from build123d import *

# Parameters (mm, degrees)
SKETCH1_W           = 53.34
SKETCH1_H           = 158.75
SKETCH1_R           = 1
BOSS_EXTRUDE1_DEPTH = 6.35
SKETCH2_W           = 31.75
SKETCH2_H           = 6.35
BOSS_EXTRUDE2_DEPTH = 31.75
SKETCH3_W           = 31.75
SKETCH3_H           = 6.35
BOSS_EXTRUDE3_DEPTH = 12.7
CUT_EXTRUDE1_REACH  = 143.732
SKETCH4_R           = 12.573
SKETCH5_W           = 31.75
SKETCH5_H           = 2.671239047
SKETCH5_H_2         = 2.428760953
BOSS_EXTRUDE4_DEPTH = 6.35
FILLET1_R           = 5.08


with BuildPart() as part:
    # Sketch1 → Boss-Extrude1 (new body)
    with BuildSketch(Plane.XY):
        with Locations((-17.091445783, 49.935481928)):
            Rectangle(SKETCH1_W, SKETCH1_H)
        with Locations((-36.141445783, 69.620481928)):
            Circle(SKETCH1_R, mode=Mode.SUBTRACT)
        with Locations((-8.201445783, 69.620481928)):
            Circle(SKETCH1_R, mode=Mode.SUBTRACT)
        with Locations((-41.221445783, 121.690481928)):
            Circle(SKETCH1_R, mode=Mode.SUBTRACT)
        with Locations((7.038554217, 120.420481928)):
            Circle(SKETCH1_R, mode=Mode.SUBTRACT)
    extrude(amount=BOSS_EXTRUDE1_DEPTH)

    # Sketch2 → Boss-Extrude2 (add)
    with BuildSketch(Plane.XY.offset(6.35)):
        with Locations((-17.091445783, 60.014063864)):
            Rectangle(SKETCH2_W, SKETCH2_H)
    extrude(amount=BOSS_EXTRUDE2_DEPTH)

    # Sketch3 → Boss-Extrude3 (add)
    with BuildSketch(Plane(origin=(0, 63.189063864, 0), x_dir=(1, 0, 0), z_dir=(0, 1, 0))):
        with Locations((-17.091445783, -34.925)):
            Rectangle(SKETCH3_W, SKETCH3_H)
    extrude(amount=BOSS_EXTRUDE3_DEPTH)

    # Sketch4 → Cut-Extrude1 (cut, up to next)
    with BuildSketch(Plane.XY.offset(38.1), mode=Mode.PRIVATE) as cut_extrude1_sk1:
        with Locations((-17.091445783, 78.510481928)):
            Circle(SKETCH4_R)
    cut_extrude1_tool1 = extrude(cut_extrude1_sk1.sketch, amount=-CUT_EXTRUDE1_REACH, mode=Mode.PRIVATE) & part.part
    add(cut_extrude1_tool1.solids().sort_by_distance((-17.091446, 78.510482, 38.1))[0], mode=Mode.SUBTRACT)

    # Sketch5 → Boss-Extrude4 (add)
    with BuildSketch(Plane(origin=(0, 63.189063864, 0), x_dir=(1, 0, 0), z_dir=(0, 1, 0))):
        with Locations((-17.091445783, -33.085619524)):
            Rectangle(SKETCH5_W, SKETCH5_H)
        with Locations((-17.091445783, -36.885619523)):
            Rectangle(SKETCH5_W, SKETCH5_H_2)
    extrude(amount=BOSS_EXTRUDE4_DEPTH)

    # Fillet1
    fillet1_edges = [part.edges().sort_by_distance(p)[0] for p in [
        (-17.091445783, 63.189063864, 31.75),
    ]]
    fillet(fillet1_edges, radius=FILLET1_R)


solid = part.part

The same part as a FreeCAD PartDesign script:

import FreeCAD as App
import Part
import Sketcher
Q = App.Units.Quantity


def edges_at(feature, points):
    """Names of the edges that pass closest to the given points."""
    edges = feature.Shape.Edges
    near = lambda p: min(range(len(edges)), key=lambda i: edges[i].distToShape(Part.Vertex(*p))[0])
    return sorted({f"Edge{near(p) + 1}" for p in points})


def add_polygon(sketch, points):
    """Adds a closed chain of lines whose ends are joined by coincident constraints."""
    first, n = sketch.GeometryCount, len(points)
    for a, b in zip(points, points[1:] + points[:1]):
        sketch.addGeometry(Part.LineSegment(App.Vector(*a, 0), App.Vector(*b, 0)), False)
    for i in range(n):
        sketch.addConstraint(Sketcher.Constraint("Coincident", first + i, 2, first + (i + 1) % n, 1))

doc = App.newDocument("Part")
body = doc.addObject("PartDesign::Body", "Body")

sketch1 = body.newObject("Sketcher::SketchObject", "Sketch")
sketch1.AttachmentSupport = (doc.getObject("XY_Plane"), [""])
sketch1.MapMode = "FlatFace"
add_polygon(sketch1, [(-43.761446, 129.310482), (-43.761446, -29.439518), (9.578554, -29.439518), (9.578554, 129.310482)])
sketch1.addGeometry(Part.Circle(App.Vector(-36.141446, 69.620482, 0), App.Vector(0, 0, 1), 1), False)
sketch1.addGeometry(Part.Circle(App.Vector(-8.201446, 69.620482, 0), App.Vector(0, 0, 1), 1), False)
sketch1.addGeometry(Part.Circle(App.Vector(-41.221446, 121.690482, 0), App.Vector(0, 0, 1), 1), False)
sketch1.addGeometry(Part.Circle(App.Vector(7.038554, 120.420482, 0), App.Vector(0, 0, 1), 1), False)
sketch1.addConstraint(Sketcher.Constraint("Vertical", 0))
sketch1.addConstraint(Sketcher.Constraint("Horizontal", 1))
sketch1.addConstraint(Sketcher.Constraint("Vertical", 2))
sketch1.addConstraint(Sketcher.Constraint("Horizontal", 3))
sketch1.addConstraint(Sketcher.Constraint("Equal", 4, 5))
sketch1.addConstraint(Sketcher.Constraint("Equal", 5, 6))
sketch1.addConstraint(Sketcher.Constraint("Equal", 6, 7))
sketch1.addConstraint(Sketcher.Constraint("Horizontal", 4, 3, 5, 3))
sketch1.addConstraint(Sketcher.Constraint("DistanceX", 1, 1, 1, 2, Q("2.1 in")))
sketch1.addConstraint(Sketcher.Constraint("DistanceY", 5, 3, 7, 3, Q("2 in")))
sketch1.addConstraint(Sketcher.Constraint("DistanceX", 0, 2, 7, 3, Q("2 in")))
sketch1.addConstraint(Sketcher.Constraint("DistanceX", 6, 3, 1, 2, Q("2 in")))
sketch1.addConstraint(Sketcher.Constraint("DistanceY", 0, 2, 0, 1, Q("6.25 in")))
sketch1.addConstraint(Sketcher.Constraint("DistanceX", 4, 3, 5, 3, Q("1.1 in")))
sketch1.addConstraint(Sketcher.Constraint("DistanceX", 6, 3, 4, 3, Q("0.2 in")))
sketch1.addConstraint(Sketcher.Constraint("DistanceY", 0, 2, 4, 3, Q("3.9 in")))
sketch1.addConstraint(Sketcher.Constraint("DistanceY", 6, 3, 2, 2, Q("0.3 in")))
sketch1.addConstraint(Sketcher.Constraint("Diameter", 4, 2.0))
sketch1.addConstraint(Sketcher.Constraint("DistanceY", -1, 1, 4, 3, 69.620482))
sketch1.addConstraint(Sketcher.Constraint("DistanceX", 4, 3, -1, 1, 36.141446))
pad1 = body.newObject("PartDesign::Pad", "Pad")
pad1.Profile = sketch1
pad1.Length = Q("0.25 in")

sketch2 = body.newObject("Sketcher::SketchObject", "Sketch001")
sketch2.AttachmentSupport = (doc.getObject("XY_Plane"), [""])
sketch2.MapMode = "FlatFace"
sketch2.AttachmentOffset = App.Placement(App.Vector(0, 0, 0.25 * 25.4), App.Rotation())
add_polygon(sketch2, [(-32.966446, 63.189064), (-32.966446, 56.839064), (-1.216446, 56.839064), (-1.216446, 63.189064)])
sketch2.addConstraint(Sketcher.Constraint("Vertical", 0))
sketch2.addConstraint(Sketcher.Constraint("Horizontal", 1))
sketch2.addConstraint(Sketcher.Constraint("Vertical", 2))
sketch2.addConstraint(Sketcher.Constraint("Horizontal", 3))
sketch2.addConstraint(Sketcher.Constraint("DistanceX", 1, 1, 1, 2, Q("1.25 in")))
sketch2.addConstraint(Sketcher.Constraint("DistanceY", 0, 2, 0, 1, Q("0.25 in")))
sketch2.addConstraint(Sketcher.Constraint("DistanceX", 0, 2, -1, 1, 32.966446))
sketch2.addConstraint(Sketcher.Constraint("DistanceY", -1, 1, 0, 2, 56.839064))
pad2 = body.newObject("PartDesign::Pad", "Pad001")
pad2.Profile = sketch2
pad2.Length = Q("1.25 in")

sketch3 = body.newObject("Sketcher::SketchObject", "Sketch002")
sketch3.AttachmentSupport = (doc.getObject("XZ_Plane"), [""])
sketch3.MapMode = "FlatFace"
sketch3.AttachmentOffset = App.Placement(App.Vector(0, 0, -63.189064), App.Rotation())
add_polygon(sketch3, [(-32.966446, 31.75), (-32.966446, 38.1), (-1.216446, 38.1), (-1.216446, 31.75)])
sketch3.addConstraint(Sketcher.Constraint("Vertical", 0))
sketch3.addConstraint(Sketcher.Constraint("Horizontal", 1))
sketch3.addConstraint(Sketcher.Constraint("Vertical", 2))
sketch3.addConstraint(Sketcher.Constraint("Horizontal", 3))
sketch3.addConstraint(Sketcher.Constraint("DistanceX", 1, 1, 1, 2, Q("1.25 in")))
sketch3.addConstraint(Sketcher.Constraint("DistanceY", 0, 1, 0, 2, Q("0.25 in")))
sketch3.addConstraint(Sketcher.Constraint("DistanceY", -1, 1, 0, 2, Q("1.5 in")))
sketch3.addConstraint(Sketcher.Constraint("DistanceX", 0, 2, -1, 1, 32.966446))
pad3 = body.newObject("PartDesign::Pad", "Pad002")
pad3.Profile = sketch3
pad3.Length = Q("0.5 in")
pad3.Reversed = True

sketch4 = body.newObject("Sketcher::SketchObject", "Sketch003")
sketch4.AttachmentSupport = (doc.getObject("XY_Plane"), [""])
sketch4.MapMode = "FlatFace"
sketch4.AttachmentOffset = App.Placement(App.Vector(0, 0, 1.5 * 25.4), App.Rotation())
sketch4.addGeometry(Part.Circle(App.Vector(-17.091446, 78.510482, 0), App.Vector(0, 0, 1), 12.573), False)
sketch4.addConstraint(Sketcher.Constraint("Diameter", 0, Q("0.99 in")))
sketch4.addConstraint(Sketcher.Constraint("DistanceY", -1, 1, 0, 3, 78.510482))
sketch4.addConstraint(Sketcher.Constraint("DistanceX", 0, 3, -1, 1, 17.091446))
pocket1 = body.newObject("PartDesign::Pocket", "Pocket")
pocket1.Profile = sketch4
pocket1.Type = "UpToFirst"

sketch5 = body.newObject("Sketcher::SketchObject", "Sketch004")
sketch5.AttachmentSupport = (doc.getObject("XZ_Plane"), [""])
sketch5.MapMode = "FlatFace"
sketch5.AttachmentOffset = App.Placement(App.Vector(0, 0, -63.189064), App.Rotation())
add_polygon(sketch5, [(-32.966446, 31.75), (-32.966446, 34.421239), (-1.216446, 34.421239), (-1.216446, 31.75)])
add_polygon(sketch5, [(-32.966446, 35.671239), (-32.966446, 38.1), (-1.216446, 38.1), (-1.216446, 35.671239)])
sketch5.addConstraint(Sketcher.Constraint("Vertical", 0))
sketch5.addConstraint(Sketcher.Constraint("Horizontal", 1))
sketch5.addConstraint(Sketcher.Constraint("Vertical", 2))
sketch5.addConstraint(Sketcher.Constraint("Horizontal", 3))
sketch5.addConstraint(Sketcher.Constraint("Vertical", 4))
sketch5.addConstraint(Sketcher.Constraint("Horizontal", 5))
sketch5.addConstraint(Sketcher.Constraint("Vertical", 6))
sketch5.addConstraint(Sketcher.Constraint("Horizontal", 7))
sketch5.addConstraint(Sketcher.Constraint("Vertical", 3, 2, 4, 2))
sketch5.addConstraint(Sketcher.Constraint("Vertical", 2, 2, 5, 2))
sketch5.addConstraint(Sketcher.Constraint("DistanceX", 1, 1, 1, 2, Q("1.25 in")))
sketch5.addConstraint(Sketcher.Constraint("DistanceY", -1, 1, 4, 2, Q("1.5 in")))
sketch5.addConstraint(Sketcher.Constraint("DistanceY", -1, 1, 2, 2, Q("1.25 in")))
sketch5.addConstraint(Sketcher.Constraint("DistanceY", 0, 1, 0, 2, 2.671239))
sketch5.addConstraint(Sketcher.Constraint("DistanceY", 4, 1, 4, 2, 2.428761))
sketch5.addConstraint(Sketcher.Constraint("DistanceX", 0, 2, -1, 1, 32.966446))
pad4 = body.newObject("PartDesign::Pad", "Pad003")
pad4.Profile = sketch5
pad4.Length = Q("0.25 in")
pad4.Reversed = True
doc.recompute()

fillet = body.newObject("PartDesign::Fillet", "Fillet")
fillet.Base = (pad4, edges_at(pad4, [(-17.091, 63.189, 31.75)]))
fillet.Radius = Q("0.2 in")

doc.recompute()
